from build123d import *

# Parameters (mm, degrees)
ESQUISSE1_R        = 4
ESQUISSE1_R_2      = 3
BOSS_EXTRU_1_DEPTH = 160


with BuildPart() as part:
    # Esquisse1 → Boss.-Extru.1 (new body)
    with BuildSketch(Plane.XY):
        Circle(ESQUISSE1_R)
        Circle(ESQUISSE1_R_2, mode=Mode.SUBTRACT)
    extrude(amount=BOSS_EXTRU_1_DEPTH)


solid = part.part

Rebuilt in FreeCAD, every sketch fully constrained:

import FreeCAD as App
import Part
import Sketcher
Q = App.Units.Quantity

doc = App.newDocument("Part")
body = doc.addObject("PartDesign::Body", "Body")

# Sketch on XY plane
sketch1 = body.newObject("Sketcher::SketchObject", "Sketch")
sketch1.AttachmentSupport = (doc.getObject("XY_Plane"), [""])
sketch1.MapMode = "FlatFace"
sketch1.addGeometry([
    Part.Circle(App.Vector(0, 0, 0), App.Vector(0, 0, 1), 4),
    Part.Circle(App.Vector(0, 0, 0), App.Vector(0, 0, 1), 3),
], False)
sketch1.addConstraint([
    Sketcher.Constraint("Coincident", 0, 3, -1, 1),
    Sketcher.Constraint("Coincident", 1, 3, -1, 1),
    Sketcher.Constraint("Diameter", 0, Q("8 mm")),
    Sketcher.Constraint("Diameter", 1, Q("6 mm")),
])
pad1 = body.newObject("PartDesign::Pad", "Pad")
pad1.Profile = sketch1
pad1.Length = 160

doc.recompute()
